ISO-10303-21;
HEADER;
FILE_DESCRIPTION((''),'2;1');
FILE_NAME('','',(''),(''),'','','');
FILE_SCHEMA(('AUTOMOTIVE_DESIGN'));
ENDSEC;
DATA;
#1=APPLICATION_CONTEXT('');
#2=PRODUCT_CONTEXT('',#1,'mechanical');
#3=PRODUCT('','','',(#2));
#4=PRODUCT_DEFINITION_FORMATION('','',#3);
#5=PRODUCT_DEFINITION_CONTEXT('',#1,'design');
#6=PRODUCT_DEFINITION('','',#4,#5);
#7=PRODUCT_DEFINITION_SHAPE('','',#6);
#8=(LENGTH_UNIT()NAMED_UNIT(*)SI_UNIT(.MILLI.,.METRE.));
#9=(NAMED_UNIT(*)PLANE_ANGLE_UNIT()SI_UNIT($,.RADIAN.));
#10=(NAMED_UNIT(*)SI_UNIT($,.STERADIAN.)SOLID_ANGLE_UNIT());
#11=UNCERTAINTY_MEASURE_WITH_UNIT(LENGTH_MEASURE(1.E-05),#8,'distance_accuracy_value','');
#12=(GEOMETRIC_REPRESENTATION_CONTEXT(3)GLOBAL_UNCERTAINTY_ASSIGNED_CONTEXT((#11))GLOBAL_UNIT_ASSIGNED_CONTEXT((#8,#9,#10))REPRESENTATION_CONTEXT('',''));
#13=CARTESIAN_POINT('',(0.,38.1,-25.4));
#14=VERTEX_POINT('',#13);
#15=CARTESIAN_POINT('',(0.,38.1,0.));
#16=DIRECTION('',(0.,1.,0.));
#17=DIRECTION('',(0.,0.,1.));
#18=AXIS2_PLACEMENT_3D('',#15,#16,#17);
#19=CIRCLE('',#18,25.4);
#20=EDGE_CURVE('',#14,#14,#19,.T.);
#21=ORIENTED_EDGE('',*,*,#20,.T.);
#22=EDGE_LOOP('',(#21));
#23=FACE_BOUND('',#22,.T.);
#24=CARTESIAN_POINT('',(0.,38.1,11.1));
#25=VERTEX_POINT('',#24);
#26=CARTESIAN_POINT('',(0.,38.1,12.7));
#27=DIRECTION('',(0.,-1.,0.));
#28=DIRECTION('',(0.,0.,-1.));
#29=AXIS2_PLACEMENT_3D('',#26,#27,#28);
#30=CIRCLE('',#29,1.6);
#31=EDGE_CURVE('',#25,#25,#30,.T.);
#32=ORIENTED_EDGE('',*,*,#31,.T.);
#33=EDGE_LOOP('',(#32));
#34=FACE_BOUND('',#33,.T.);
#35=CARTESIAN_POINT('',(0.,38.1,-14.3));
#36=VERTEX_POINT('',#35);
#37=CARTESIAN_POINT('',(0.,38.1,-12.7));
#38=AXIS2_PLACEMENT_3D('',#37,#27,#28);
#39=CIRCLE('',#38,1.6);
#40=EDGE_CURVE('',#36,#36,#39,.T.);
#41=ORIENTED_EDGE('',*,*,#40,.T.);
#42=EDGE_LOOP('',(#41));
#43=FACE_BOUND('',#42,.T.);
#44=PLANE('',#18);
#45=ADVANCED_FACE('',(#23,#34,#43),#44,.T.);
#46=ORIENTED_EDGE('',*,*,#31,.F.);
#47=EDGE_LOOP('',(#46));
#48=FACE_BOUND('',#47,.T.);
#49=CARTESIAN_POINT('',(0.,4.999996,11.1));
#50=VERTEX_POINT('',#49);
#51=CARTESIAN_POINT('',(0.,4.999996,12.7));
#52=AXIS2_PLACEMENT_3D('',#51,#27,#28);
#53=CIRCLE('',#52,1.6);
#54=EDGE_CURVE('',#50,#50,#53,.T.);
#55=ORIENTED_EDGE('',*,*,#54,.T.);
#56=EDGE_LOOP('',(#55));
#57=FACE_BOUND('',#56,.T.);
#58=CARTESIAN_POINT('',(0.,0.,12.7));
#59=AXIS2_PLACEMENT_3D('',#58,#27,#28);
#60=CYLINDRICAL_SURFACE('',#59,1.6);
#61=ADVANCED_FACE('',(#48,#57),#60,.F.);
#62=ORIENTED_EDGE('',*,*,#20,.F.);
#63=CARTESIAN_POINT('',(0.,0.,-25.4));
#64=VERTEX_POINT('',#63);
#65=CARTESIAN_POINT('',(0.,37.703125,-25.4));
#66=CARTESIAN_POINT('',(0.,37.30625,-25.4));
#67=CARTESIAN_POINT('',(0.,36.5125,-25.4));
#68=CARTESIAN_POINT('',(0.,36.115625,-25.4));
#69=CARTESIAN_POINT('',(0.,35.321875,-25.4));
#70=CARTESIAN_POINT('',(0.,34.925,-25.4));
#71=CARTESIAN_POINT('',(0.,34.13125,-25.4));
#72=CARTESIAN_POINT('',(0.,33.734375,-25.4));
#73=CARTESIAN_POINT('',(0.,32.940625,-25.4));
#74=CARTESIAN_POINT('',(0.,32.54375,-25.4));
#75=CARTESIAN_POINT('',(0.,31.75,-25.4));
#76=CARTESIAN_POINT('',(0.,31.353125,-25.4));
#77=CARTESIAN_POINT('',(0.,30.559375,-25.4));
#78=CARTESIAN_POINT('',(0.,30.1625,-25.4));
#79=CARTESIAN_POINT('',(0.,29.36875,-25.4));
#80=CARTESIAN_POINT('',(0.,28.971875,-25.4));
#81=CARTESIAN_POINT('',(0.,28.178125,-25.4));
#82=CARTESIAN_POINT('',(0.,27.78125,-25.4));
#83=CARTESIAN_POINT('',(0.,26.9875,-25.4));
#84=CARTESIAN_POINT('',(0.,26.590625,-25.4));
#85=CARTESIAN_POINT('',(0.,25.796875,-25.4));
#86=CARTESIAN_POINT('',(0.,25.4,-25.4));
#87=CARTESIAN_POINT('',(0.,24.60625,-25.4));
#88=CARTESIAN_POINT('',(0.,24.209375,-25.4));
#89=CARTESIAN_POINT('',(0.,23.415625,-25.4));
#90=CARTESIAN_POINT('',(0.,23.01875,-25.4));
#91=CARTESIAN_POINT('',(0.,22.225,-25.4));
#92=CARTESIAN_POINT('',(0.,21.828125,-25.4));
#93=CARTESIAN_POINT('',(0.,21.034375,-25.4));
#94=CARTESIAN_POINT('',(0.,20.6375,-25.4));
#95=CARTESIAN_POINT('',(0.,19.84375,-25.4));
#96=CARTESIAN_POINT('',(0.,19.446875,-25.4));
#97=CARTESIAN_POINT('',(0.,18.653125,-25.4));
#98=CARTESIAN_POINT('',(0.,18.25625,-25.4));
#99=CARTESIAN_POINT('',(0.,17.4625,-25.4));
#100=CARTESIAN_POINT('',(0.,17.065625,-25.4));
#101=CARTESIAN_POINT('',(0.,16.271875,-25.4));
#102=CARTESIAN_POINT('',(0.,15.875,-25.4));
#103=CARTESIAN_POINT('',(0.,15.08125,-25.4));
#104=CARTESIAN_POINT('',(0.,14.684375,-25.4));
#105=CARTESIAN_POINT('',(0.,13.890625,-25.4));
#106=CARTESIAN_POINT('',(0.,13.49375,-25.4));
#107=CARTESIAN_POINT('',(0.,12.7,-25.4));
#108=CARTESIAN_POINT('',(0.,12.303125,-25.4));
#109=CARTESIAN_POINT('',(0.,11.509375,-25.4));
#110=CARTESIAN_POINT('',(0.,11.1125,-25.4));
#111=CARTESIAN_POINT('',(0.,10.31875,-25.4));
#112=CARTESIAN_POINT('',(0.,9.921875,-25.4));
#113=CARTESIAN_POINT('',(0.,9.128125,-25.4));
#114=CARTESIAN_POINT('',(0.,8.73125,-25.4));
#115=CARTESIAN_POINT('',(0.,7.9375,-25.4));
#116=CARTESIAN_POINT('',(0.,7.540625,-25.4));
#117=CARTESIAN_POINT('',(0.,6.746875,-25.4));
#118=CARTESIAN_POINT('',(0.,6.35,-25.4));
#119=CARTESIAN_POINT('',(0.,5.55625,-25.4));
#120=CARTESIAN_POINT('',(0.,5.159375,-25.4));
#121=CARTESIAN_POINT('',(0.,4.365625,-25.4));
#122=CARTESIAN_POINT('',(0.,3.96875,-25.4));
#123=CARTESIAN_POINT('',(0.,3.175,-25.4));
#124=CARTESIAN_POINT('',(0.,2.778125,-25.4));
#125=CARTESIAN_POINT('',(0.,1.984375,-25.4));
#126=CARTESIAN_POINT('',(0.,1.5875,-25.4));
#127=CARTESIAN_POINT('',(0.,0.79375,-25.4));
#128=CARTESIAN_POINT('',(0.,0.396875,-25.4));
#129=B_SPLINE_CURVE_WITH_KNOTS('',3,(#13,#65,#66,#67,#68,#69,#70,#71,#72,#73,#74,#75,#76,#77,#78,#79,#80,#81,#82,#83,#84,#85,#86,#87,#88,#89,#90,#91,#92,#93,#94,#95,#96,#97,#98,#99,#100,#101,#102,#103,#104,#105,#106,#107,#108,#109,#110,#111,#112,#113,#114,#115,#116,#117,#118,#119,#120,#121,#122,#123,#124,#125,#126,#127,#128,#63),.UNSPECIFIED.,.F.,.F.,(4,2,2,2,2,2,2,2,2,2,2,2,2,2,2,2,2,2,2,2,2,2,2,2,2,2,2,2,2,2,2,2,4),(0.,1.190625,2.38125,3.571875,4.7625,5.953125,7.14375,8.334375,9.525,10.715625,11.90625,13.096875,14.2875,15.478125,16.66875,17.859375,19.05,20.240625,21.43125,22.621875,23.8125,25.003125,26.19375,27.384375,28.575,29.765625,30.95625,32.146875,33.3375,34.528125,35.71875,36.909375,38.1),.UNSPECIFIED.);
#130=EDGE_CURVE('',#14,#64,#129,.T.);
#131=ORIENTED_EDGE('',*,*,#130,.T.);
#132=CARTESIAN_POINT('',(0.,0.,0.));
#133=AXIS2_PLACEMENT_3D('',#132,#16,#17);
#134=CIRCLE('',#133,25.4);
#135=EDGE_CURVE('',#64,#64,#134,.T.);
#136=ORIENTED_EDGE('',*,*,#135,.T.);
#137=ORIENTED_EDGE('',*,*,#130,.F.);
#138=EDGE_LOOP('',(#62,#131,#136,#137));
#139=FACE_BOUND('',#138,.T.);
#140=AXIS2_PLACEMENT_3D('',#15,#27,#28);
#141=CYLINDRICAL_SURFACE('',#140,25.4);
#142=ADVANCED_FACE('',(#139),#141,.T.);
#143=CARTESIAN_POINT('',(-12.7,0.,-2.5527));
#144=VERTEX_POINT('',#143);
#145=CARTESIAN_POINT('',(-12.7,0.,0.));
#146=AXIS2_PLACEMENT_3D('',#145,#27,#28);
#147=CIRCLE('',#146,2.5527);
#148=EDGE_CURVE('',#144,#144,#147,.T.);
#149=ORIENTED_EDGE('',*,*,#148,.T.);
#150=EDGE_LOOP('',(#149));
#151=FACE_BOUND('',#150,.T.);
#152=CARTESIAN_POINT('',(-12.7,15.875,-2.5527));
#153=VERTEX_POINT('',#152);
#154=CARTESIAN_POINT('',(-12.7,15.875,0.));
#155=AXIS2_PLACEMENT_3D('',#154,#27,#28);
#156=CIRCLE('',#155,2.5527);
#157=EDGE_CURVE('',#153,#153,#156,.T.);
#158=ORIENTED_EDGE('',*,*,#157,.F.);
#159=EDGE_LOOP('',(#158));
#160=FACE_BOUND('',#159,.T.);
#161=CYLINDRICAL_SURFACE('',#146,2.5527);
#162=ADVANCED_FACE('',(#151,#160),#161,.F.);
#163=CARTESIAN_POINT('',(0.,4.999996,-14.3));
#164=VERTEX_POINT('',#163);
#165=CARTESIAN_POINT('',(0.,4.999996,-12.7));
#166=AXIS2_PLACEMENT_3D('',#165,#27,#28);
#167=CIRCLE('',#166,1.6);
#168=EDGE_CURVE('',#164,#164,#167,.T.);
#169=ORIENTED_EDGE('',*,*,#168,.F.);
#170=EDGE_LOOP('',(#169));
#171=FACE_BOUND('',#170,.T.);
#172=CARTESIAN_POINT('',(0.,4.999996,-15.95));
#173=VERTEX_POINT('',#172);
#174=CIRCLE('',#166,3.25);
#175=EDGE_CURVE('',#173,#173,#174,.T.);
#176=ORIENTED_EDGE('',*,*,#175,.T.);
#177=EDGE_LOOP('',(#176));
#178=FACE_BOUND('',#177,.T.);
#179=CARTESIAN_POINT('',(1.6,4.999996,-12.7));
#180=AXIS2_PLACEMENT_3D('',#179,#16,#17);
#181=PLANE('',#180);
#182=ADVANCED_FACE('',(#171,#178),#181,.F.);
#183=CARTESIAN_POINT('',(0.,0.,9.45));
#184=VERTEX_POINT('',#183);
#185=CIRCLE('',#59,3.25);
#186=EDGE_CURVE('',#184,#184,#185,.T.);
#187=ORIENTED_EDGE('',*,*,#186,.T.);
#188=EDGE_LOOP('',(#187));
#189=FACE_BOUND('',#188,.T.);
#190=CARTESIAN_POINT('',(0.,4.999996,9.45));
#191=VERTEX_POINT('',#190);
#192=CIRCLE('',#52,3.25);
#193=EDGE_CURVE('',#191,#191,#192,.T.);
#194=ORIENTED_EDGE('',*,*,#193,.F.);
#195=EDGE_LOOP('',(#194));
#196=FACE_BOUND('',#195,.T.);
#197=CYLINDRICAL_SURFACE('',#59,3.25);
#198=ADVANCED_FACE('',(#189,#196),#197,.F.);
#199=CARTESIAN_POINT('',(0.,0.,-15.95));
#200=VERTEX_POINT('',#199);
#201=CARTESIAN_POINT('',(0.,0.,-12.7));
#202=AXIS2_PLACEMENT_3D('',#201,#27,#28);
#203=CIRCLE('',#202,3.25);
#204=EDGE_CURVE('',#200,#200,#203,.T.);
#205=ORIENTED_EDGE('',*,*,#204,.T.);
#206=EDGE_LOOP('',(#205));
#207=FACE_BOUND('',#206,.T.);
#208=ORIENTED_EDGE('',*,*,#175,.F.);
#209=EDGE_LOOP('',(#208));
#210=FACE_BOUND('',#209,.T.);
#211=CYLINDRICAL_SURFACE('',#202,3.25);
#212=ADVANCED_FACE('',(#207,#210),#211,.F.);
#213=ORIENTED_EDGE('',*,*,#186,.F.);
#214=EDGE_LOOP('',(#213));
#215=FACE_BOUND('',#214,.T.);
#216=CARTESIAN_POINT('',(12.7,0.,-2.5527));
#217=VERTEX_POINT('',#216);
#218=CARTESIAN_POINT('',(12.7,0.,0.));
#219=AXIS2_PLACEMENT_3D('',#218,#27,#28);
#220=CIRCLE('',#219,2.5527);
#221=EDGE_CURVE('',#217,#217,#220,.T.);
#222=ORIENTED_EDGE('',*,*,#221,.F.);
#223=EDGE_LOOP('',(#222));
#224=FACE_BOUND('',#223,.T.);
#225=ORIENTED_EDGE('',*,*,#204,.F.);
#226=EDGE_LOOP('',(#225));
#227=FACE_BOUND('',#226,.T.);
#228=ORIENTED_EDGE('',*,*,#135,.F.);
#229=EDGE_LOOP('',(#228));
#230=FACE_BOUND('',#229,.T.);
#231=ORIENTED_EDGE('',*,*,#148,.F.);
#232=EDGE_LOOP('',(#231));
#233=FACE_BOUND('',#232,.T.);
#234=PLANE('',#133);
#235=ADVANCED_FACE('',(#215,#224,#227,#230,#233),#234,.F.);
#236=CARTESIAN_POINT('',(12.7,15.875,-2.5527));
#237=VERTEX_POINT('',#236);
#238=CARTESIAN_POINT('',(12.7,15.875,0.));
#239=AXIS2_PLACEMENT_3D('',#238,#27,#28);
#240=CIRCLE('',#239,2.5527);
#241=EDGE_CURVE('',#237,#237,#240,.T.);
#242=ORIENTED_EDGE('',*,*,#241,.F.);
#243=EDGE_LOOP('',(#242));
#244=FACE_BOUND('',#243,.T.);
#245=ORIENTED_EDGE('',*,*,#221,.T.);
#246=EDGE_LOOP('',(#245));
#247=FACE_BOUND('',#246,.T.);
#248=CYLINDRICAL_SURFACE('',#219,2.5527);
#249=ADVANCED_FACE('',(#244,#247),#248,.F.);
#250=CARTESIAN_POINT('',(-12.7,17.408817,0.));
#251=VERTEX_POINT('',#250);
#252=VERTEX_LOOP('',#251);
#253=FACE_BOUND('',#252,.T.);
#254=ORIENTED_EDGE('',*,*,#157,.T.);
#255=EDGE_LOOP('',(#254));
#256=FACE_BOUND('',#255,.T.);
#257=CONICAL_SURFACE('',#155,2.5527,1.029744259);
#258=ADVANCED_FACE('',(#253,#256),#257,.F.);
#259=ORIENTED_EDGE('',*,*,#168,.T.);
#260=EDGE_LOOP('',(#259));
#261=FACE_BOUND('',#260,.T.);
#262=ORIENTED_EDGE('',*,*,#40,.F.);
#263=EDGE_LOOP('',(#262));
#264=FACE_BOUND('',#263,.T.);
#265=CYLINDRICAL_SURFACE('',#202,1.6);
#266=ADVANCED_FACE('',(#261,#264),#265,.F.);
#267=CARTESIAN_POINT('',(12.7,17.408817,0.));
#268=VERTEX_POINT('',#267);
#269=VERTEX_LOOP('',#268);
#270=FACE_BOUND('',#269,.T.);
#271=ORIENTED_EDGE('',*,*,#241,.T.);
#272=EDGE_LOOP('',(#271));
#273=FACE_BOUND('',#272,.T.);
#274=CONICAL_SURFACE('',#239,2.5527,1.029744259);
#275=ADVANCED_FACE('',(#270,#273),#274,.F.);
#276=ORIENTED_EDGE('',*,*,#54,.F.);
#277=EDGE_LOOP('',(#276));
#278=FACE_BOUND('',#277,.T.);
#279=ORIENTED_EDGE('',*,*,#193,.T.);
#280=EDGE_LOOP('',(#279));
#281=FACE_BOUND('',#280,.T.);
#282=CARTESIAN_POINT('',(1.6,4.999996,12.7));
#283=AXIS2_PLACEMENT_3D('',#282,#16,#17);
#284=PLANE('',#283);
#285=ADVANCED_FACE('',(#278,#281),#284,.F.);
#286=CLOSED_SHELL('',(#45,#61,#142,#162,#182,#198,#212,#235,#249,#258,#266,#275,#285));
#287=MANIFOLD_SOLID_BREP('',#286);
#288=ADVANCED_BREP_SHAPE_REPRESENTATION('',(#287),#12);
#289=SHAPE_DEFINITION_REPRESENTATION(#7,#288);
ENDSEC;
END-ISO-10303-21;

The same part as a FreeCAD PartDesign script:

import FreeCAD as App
import Part
import Sketcher
Q = App.Units.Quantity

doc = App.newDocument("Part")
body = doc.addObject("PartDesign::Body", "Body")

# Sketch on XZ plane
sketch1 = body.newObject("Sketcher::SketchObject", "Sketch")
sketch1.AttachmentSupport = (doc.getObject("XZ_Plane"), [""])
sketch1.MapMode = "FlatFace"
sketch1.addGeometry(Part.Circle(App.Vector(0, 0, 0), App.Vector(0, 0, 1), 25), False)
sketch1.addConstraint(Sketcher.Constraint("Coincident", 0, 3, -1, 1))
sketch1.addConstraint(Sketcher.Constraint("Diameter", 0, Q("2 in")))
pad1 = body.newObject("PartDesign::Pad", "Pad")
pad1.Profile = sketch1
pad1.Length = Q("1.5 in")
pad1.Reversed = True

# Sketch on XZ plane
sketch2 = body.newObject("Sketcher::SketchObject", "Sketch001")
sketch2.AttachmentSupport = (doc.getObject("XZ_Plane"), [""])
sketch2.MapMode = "FlatFace"
sketch2.addGeometry(Part.Circle(App.Vector(-12.7, 0, 0), App.Vector(0, 0, 1), 2.6), False)
sketch2.addGeometry(Part.Circle(App.Vector(12.7, 0, 0), App.Vector(0, 0, 1), 2.6), False)
sketch2.addConstraint(Sketcher.Constraint("Equal", 0, 1))
sketch2.addConstraint(Sketcher.Constraint("Symmetric", 0, 3, 1, 3, -1, 1))
sketch2.addConstraint(Sketcher.Constraint("PointOnObject", 0, 3, -1))
sketch2.addConstraint(Sketcher.Constraint("Diameter", 0, Q("0.201 in")))
sketch2.addConstraint(Sketcher.Constraint("DistanceX", 0, 3, 1, 3, Q("1 in")))
doc.recompute()
hole = body.newObject("PartDesign::Hole", "Hole")
hole.Profile = sketch2
hole.ThreadType = "None"
hole.Diameter = Q("0.201 in")
hole.DepthType = "Dimension"
hole.Depth = Q("0.625 in")
hole.DrillPoint = "Angled"
hole.DrillPointAngle = 118

# Sketch on XZ plane
sketch3 = body.newObject("Sketcher::SketchObject", "Sketch002")
sketch3.AttachmentSupport = (doc.getObject("XZ_Plane"), [""])
sketch3.MapMode = "FlatFace"
sketch3.addGeometry(Part.Circle(App.Vector(0, 12.7, 0), App.Vector(0, 0, 1), 1.6), False)
sketch3.addGeometry(Part.Circle(App.Vector(0, -12.7, 0), App.Vector(0, 0, 1), 1.6), False)
sketch3.addConstraint(Sketcher.Constraint("Equal", 0, 1))
sketch3.addConstraint(Sketcher.Constraint("Symmetric", 0, 3, 1, 3, -1, 1))
sketch3.addConstraint(Sketcher.Constraint("PointOnObject", 0, 3, -2))
sketch3.addConstraint(Sketcher.Constraint("DistanceY", 1, 3, 0, 3, Q("1 in")))
sketch3.addConstraint(Sketcher.Constraint("Diameter", 0, Q("3.2 mm")))
doc.recompute()
hole2 = body.newObject("PartDesign::Hole", "Hole001")
hole2.Profile = sketch3
hole2.ThreadType = "None"
hole2.Diameter = 3.2
hole2.DepthType = "ThroughAll"
hole2.HoleCutType = "Counterbore"
hole2.HoleCutDiameter = 6.5
hole2.HoleCutDepth = 4.999996

doc.recompute()
